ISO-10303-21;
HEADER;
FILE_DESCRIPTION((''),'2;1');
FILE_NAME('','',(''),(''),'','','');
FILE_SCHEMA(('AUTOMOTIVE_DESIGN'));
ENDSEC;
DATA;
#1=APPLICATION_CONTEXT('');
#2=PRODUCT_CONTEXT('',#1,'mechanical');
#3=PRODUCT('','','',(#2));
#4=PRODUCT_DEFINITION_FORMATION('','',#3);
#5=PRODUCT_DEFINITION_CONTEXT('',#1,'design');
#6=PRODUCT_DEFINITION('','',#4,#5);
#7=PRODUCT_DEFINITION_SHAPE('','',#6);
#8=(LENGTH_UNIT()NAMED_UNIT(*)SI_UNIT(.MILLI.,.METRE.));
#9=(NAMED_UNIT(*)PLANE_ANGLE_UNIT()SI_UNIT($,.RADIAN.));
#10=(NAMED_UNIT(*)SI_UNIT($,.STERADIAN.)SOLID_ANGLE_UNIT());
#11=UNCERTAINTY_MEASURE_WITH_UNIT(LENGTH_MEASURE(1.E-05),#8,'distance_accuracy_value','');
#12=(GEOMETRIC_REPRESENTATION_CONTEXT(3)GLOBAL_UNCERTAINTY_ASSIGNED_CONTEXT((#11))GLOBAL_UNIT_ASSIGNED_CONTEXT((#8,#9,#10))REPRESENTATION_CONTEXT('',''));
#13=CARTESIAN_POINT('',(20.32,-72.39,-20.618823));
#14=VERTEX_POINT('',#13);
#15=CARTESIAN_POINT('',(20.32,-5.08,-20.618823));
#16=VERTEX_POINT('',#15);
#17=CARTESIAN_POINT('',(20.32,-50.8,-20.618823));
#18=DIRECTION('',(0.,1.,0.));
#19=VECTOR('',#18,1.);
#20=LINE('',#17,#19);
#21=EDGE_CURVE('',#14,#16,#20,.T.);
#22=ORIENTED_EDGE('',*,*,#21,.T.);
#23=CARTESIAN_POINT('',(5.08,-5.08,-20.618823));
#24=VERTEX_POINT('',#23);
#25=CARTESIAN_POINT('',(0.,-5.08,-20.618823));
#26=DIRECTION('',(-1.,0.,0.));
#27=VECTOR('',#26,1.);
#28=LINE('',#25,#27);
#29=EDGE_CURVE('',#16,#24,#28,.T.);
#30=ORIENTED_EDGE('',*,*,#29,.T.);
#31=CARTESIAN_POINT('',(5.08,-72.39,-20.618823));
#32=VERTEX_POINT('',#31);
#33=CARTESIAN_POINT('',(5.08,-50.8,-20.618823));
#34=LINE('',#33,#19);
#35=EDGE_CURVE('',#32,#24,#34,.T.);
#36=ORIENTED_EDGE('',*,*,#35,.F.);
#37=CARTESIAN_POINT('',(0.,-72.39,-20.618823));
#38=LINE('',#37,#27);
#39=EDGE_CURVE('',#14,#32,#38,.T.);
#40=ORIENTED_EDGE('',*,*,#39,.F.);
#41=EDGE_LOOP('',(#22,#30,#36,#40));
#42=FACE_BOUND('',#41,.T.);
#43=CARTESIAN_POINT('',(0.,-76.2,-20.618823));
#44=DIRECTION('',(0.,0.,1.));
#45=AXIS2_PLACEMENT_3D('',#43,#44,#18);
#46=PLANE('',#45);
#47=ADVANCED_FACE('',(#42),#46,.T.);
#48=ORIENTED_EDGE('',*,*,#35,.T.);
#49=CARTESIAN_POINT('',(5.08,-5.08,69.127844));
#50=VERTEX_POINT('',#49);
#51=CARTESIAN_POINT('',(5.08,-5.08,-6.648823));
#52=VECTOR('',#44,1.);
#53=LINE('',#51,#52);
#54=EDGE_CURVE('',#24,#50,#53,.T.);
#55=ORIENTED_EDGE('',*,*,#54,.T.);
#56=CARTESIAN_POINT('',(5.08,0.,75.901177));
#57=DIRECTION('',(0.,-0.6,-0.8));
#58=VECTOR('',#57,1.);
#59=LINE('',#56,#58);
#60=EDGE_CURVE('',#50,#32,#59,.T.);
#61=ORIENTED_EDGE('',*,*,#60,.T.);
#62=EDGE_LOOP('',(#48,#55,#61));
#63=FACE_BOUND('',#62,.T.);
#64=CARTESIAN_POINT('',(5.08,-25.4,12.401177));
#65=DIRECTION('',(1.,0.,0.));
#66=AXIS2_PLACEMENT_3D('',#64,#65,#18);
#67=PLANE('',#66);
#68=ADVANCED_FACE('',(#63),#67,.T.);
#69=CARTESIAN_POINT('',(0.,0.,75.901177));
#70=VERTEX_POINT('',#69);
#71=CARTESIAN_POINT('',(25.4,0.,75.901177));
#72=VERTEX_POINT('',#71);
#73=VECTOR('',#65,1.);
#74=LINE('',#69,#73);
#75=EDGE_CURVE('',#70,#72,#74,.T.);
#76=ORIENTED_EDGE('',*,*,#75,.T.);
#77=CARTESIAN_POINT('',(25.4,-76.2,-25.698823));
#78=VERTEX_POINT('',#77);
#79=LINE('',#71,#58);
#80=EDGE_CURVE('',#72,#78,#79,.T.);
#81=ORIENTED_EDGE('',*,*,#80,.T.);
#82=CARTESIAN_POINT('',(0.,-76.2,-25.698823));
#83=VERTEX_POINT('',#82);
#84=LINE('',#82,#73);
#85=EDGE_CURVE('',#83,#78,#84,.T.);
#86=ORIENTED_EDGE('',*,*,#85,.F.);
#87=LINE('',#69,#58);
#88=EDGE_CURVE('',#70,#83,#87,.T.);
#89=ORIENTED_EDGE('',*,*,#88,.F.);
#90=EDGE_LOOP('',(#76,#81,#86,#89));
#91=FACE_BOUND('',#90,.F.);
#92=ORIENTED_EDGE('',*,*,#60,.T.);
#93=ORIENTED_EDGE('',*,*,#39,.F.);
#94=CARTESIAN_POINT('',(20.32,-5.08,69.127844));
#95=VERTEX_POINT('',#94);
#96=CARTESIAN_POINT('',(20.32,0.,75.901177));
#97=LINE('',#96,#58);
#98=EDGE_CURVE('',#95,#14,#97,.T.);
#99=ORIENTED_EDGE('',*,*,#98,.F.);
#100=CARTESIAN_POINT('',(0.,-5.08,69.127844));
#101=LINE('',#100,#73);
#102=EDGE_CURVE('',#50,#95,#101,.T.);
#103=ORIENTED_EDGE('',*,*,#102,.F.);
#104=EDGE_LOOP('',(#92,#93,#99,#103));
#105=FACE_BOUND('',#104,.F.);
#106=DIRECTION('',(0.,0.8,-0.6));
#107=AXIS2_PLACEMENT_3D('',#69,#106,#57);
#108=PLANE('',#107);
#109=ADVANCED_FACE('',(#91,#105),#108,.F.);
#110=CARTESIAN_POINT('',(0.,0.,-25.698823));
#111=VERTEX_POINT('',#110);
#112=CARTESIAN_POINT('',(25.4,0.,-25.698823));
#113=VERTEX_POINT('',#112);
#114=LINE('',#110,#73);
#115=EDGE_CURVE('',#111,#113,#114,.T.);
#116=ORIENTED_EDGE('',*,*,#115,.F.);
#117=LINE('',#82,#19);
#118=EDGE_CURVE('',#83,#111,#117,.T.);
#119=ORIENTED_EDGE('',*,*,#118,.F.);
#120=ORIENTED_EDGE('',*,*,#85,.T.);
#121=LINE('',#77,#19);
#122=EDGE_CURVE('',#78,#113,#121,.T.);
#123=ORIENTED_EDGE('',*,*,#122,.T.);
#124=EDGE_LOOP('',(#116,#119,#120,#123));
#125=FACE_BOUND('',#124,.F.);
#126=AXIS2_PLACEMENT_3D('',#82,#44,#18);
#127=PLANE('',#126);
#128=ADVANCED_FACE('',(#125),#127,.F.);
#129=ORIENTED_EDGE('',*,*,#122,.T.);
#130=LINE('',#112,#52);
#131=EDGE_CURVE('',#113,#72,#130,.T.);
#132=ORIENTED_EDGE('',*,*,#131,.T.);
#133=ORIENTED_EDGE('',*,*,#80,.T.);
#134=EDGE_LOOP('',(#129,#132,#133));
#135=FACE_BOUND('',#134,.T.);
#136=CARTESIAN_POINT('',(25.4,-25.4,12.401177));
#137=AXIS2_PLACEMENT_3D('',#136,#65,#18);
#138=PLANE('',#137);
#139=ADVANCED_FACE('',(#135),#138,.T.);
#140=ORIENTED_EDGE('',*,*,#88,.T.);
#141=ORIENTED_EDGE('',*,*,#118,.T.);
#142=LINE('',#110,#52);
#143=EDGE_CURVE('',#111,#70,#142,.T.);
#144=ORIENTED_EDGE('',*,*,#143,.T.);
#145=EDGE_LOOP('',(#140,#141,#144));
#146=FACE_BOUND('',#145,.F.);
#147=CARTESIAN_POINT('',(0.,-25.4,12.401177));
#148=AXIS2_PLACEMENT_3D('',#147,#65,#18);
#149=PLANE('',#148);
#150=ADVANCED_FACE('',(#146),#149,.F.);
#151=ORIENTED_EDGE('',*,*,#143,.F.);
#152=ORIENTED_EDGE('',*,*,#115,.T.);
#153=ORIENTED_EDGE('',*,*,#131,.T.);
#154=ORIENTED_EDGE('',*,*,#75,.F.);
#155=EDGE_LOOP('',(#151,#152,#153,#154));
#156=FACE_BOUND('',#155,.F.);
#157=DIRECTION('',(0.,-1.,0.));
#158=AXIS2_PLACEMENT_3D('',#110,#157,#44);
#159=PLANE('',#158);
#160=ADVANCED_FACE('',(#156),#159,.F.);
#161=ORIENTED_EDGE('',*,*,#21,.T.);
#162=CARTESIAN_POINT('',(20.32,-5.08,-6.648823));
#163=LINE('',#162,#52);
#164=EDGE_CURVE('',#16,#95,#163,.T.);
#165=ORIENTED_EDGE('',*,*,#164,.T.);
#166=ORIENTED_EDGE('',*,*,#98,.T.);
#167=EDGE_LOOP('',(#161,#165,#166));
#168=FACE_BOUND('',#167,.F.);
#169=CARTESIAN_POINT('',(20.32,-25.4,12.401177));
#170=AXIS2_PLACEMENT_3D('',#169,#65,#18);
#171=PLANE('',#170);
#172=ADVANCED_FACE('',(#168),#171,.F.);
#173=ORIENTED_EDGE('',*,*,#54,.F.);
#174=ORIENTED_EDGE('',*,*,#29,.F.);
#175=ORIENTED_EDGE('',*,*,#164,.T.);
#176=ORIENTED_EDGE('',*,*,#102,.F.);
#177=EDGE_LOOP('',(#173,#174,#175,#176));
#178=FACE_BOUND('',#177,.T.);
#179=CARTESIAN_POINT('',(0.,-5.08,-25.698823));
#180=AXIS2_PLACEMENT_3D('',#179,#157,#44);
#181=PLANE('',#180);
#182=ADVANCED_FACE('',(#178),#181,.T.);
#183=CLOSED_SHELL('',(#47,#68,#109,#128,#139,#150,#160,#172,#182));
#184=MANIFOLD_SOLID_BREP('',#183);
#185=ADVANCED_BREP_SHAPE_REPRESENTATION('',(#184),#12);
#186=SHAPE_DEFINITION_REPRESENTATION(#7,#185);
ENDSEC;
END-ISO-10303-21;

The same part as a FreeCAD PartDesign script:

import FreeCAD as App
import Part
import Sketcher

V = App.Vector
Q = App.Units.Quantity


def faces_at(feature, points):
    """Names of the faces that lie closest to the given points."""
    faces = feature.Shape.Faces
    near = lambda p: min(range(len(faces)), key=lambda i: faces[i].distToShape(Part.Vertex(*p))[0])
    return sorted({f"Face{near(p) + 1}" for p in points})

doc = App.newDocument("Part")
body = doc.addObject("PartDesign::Body", "Body")

# Sketch on YZ plane
sketch1 = doc.addObject("Sketcher::SketchObject", "Sketch")
body.addObject(sketch1)
sketch1.AttachmentSupport = (doc.YZ_Plane, [""])
sketch1.MapMode = "FlatFace"
sketch1.addGeometry([
    Part.LineSegment(V(-76, -26, 0), V(0, -26, 0)),
    Part.LineSegment(V(0, -26, 0), V(0, 76, 0)),
    Part.LineSegment(V(0, 76, 0), V(-76, -26, 0)),
], False)
sketch1.addConstraint([
    Sketcher.Constraint("Coincident", 0, 2, 1, 1),
    Sketcher.Constraint("Coincident", 1, 2, 2, 1),
    Sketcher.Constraint("Coincident", 2, 2, 0, 1),
    Sketcher.Constraint("Horizontal", 0),
    Sketcher.Constraint("Vertical", 1),
    Sketcher.Constraint("PointOnObject", 0, 2, -2),
    Sketcher.Constraint("DistanceX", 0, 1, 0, 2, Q("3 in")),
    Sketcher.Constraint("DistanceY", 1, 1, 1, 2, Q("4 in")),
    Sketcher.Constraint("DistanceY", 0, 2, -1, 1, Q("25.698823 mm")),
])
pad1 = doc.addObject("PartDesign::Pad", "Pad")
body.addObject(pad1)
pad1.Profile = sketch1
pad1.Length = Q("1 in")
doc.recompute()

thickness = doc.addObject("PartDesign::Thickness", "Thickness")
body.addObject(thickness)
thickness.Base = (pad1, faces_at(pad1, [(12.7, -38.1, 25.101)]))
thickness.Value = Q("0.2 in")
thickness.Reversed = True
thickness.Join = "Arc"

doc.recompute()
